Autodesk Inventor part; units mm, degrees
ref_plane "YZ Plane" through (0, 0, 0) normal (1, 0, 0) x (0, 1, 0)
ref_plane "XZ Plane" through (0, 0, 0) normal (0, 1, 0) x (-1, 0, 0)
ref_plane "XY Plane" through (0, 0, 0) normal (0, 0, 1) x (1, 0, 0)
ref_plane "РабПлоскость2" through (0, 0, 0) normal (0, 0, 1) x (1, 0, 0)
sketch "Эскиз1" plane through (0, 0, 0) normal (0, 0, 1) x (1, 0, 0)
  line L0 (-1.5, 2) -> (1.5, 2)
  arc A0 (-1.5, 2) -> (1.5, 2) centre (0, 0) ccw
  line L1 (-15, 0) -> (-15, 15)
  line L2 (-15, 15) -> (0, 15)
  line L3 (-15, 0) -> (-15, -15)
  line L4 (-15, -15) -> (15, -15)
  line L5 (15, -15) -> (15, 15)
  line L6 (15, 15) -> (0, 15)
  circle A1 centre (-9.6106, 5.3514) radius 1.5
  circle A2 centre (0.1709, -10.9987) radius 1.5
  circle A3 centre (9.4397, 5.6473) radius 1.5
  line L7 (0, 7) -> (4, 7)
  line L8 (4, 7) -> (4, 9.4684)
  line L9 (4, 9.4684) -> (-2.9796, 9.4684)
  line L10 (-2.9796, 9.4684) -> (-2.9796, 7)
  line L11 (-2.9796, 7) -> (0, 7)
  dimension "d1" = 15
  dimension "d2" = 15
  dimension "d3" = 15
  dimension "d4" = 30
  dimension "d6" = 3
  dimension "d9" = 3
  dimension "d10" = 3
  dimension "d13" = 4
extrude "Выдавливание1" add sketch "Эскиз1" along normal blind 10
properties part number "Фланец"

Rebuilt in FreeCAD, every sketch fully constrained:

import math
import FreeCAD as App
import Part
import Sketcher

V = App.Vector
Q = App.Units.Quantity

doc = App.newDocument("Part")
params = doc.addObject("Spreadsheet::Sheet", "Params")
for row, (alias, value) in enumerate([
    ("sketch1_diameter", "3 mm"),
    ("sketch1_width", "30 mm"),
    ("sketch1_width2", "3 mm"),
    ("sketch1_radius", "2.5 mm"),
    ("pad1_length", "10 mm"),
], start=1):
    params.set(f"A{row}", alias)
    params.set(f"B{row}", "=" + value)
    params.setAlias(f"B{row}", alias)

body = doc.addObject("PartDesign::Body", "Body")

# Sketch on XY plane
sketch1 = body.newObject("Sketcher::SketchObject", "Sketch")
sketch1.AttachmentSupport = (doc.getObject("XY_Plane"), [""])
sketch1.MapMode = "FlatFace"
sketch1.addGeometry([
    Part.LineSegment(V(-15, 15, 0), V(-15, -15, 0)),  # 0
    Part.LineSegment(V(-15, -15, 0), V(15, -15, 0)),  # 1
    Part.LineSegment(V(15, -15, 0), V(15, 15, 0)),  # 2
    Part.LineSegment(V(15, 15, 0), V(-15, 15, 0)),  # 3
    Part.Circle(V(0.2, -11, 0), V(0, 0, 1), 1.5),  # 4
    Part.ArcOfCircle(Part.Circle(V(0, 0, 0), V(0, 0, 1), 2.5), math.radians(127), math.radians(413)),  # 5
    Part.LineSegment(V(-1.5, 2, 0), V(1.5, 2, 0)),  # 6
    Part.Circle(V(-9.6, 5.4, 0), V(0, 0, 1), 1.5),  # 7
    Part.Circle(V(9.4, 5.6, 0), V(0, 0, 1), 1.5),  # 8
    Part.LineSegment(V(4, 7, 0), V(-3, 7, 0)),  # 9
    Part.LineSegment(V(-3, 7, 0), V(-3, 9.5, 0)),  # 10
    Part.LineSegment(V(-3, 9.5, 0), V(4, 9.5, 0)),  # 11
    Part.LineSegment(V(4, 9.5, 0), V(4, 7, 0)),  # 12
], False)
sketch1.addConstraint([
    Sketcher.Constraint("Coincident", 0, 2, 1, 1),
    Sketcher.Constraint("Coincident", 1, 2, 2, 1),
    Sketcher.Constraint("Coincident", 2, 2, 3, 1),
    Sketcher.Constraint("Coincident", 3, 2, 0, 1),
    Sketcher.Constraint("Coincident", 5, 1, 6, 1),
    Sketcher.Constraint("Coincident", 6, 2, 5, 2),
    Sketcher.Constraint("Coincident", 9, 2, 10, 1),
    Sketcher.Constraint("Coincident", 10, 2, 11, 1),
    Sketcher.Constraint("Coincident", 11, 2, 12, 1),
    Sketcher.Constraint("Coincident", 12, 2, 9, 1),
    Sketcher.Constraint("Vertical", 0),
    Sketcher.Constraint("Horizontal", 1),
    Sketcher.Constraint("Vertical", 2),
    Sketcher.Constraint("Horizontal", 3),
    Sketcher.Constraint("Horizontal", 6),
    Sketcher.Constraint("Horizontal", 9),
    Sketcher.Constraint("Vertical", 10),
    Sketcher.Constraint("Horizontal", 11),
    Sketcher.Constraint("Vertical", 12),
    Sketcher.Constraint("Coincident", 5, 3, -1, 1),
    Sketcher.Constraint("Equal", 4, 7),
    Sketcher.Constraint("Equal", 7, 8),
    Sketcher.Constraint("Symmetric", 0, 2, 2, 2, -1, 1),
    Sketcher.Constraint("Equal", 3, 0),
    Sketcher.Constraint("Diameter", 4, Q("3 mm")),
    Sketcher.Constraint("DistanceX", 1, 1, 1, 2, Q("30 mm")),
    Sketcher.Constraint("DistanceX", 6, 1, 6, 2, Q("3 mm")),
    Sketcher.Constraint("DistanceX", -1, 1, 11, 2, Q("4 mm")),
    Sketcher.Constraint("Radius", 5, Q("2.5 mm")),
    Sketcher.Constraint("DistanceY", -1, 1, 9, 2, Q("7 mm")),
    Sketcher.Constraint("DistanceY", 4, 3, 7, 3, Q("16.35 mm")),
    Sketcher.Constraint("DistanceX", 9, 2, 9, 1, Q("6.9796 mm")),
    Sketcher.Constraint("DistanceY", 10, 1, 10, 2, Q("2.4684 mm")),
    Sketcher.Constraint("DistanceX", -1, 1, 4, 3, Q("0.171 mm")),
    Sketcher.Constraint("DistanceY", 4, 3, 8, 3, Q("16.646 mm")),
    Sketcher.Constraint("DistanceX", 7, 3, 9, 2, Q("6.631 mm")),
    Sketcher.Constraint("DistanceY", 7, 3, 10, 2, Q("4.117 mm")),
    Sketcher.Constraint("DistanceX", -1, 1, 8, 3, Q("9.4397 mm")),
])
sketch1.setExpression("Constraints[24]", "Params.sketch1_diameter")
sketch1.setExpression("Constraints[25]", "Params.sketch1_width")
sketch1.setExpression("Constraints[26]", "Params.sketch1_width2")
sketch1.setExpression("Constraints[28]", "Params.sketch1_radius")
pad1 = body.newObject("PartDesign::Pad", "Pad")
pad1.Profile = sketch1
pad1.setExpression("Length", "Params.pad1_length")

doc.recompute()
